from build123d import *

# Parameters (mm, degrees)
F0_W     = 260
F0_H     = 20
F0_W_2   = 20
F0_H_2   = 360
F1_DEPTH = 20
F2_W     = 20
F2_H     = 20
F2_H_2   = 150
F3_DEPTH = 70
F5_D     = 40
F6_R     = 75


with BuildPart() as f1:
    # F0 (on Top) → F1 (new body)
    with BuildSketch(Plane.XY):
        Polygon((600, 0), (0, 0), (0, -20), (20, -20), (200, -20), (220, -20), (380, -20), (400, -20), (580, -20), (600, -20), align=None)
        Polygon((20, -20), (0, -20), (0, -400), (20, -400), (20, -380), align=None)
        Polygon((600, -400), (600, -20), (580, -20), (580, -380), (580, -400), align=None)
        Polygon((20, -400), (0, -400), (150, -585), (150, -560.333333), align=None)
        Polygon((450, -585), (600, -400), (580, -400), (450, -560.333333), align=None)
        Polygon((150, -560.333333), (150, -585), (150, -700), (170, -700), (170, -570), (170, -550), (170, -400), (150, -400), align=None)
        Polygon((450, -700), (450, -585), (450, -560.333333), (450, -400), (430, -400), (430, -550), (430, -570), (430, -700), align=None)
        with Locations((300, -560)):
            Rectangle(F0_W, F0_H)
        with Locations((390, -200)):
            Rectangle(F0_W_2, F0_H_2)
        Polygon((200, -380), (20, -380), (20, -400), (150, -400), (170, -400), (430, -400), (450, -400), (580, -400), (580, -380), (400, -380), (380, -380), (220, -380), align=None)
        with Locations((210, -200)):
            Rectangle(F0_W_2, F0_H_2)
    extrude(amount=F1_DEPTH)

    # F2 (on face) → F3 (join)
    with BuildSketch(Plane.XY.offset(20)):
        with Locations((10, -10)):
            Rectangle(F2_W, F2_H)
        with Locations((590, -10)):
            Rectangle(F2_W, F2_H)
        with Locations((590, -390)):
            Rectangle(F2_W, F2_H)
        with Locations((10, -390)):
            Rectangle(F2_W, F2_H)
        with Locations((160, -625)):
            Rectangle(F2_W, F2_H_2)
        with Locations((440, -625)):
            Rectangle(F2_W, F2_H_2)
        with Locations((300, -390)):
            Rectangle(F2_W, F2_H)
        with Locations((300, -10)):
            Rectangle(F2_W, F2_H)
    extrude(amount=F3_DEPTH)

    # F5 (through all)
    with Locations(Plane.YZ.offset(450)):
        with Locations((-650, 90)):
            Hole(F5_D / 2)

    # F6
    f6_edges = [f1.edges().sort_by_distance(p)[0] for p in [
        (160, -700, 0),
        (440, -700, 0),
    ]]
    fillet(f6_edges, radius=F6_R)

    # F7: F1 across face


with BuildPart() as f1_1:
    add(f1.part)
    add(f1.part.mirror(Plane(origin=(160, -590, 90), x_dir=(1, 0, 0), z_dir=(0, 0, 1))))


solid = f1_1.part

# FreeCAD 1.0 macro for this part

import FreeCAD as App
import Part
import Sketcher
from FreeCAD import Vector
Q = App.Units.Quantity


def edges_at(feature, points):
    """Names of the edges that pass closest to the given points."""
    edges = feature.Shape.Edges
    near = lambda p: min(range(len(edges)), key=lambda i: edges[i].distToShape(Part.Vertex(*p))[0])
    return sorted({f"Edge{near(p) + 1}" for p in points})


def add_polygon(sketch, points):
    """Adds a closed chain of lines whose ends are joined by coincident constraints."""
    first, n = sketch.GeometryCount, len(points)
    for a, b in zip(points, points[1:] + points[:1]):
        sketch.addGeometry(Part.LineSegment(App.Vector(*a, 0), App.Vector(*b, 0)), False)
    for i in range(n):
        sketch.addConstraint(Sketcher.Constraint("Coincident", first + i, 2, first + (i + 1) % n, 1))

doc = App.newDocument("Part")
body = doc.addObject("PartDesign::Body", "Body")

# Sketch on XY plane
sketch1 = body.newObject("Sketcher::SketchObject", "Sketch")
sketch1.AttachmentSupport = (doc.getObject("XY_Plane"), [""])
sketch1.MapMode = "FlatFace"
add_polygon(sketch1, [(600, 0), (0, 0), (0, -400), (150, -585), (150, -700), (170, -700), (170, -570), (430, -570), (430, -700), (450, -700), (450, -585), (600, -400)])  # lines 0-11
add_polygon(sketch1, [(170, -550), (170, -400), (430, -400), (430, -550)])  # lines 12-15
add_polygon(sketch1, [(150, -400), (150, -560.333333), (20, -400)])  # lines 16-18
add_polygon(sketch1, [(20, -380), (20, -20), (200, -20), (200, -380)])  # lines 19-22
add_polygon(sketch1, [(220, -20), (380, -20), (380, -380), (220, -380)])  # lines 23-26
add_polygon(sketch1, [(400, -380), (400, -20), (580, -20), (580, -380)])  # lines 27-30
add_polygon(sketch1, [(580, -400), (450, -560.333333), (450, -400)])  # lines 31-33
sketch1.addConstraint(Sketcher.Constraint("Horizontal", 0))
sketch1.addConstraint(Sketcher.Constraint("Vertical", 1))
sketch1.addConstraint(Sketcher.Constraint("Vertical", 3))
sketch1.addConstraint(Sketcher.Constraint("Horizontal", 4))
sketch1.addConstraint(Sketcher.Constraint("Vertical", 5))
sketch1.addConstraint(Sketcher.Constraint("Horizontal", 6))
sketch1.addConstraint(Sketcher.Constraint("Vertical", 7))
sketch1.addConstraint(Sketcher.Constraint("Horizontal", 8))
sketch1.addConstraint(Sketcher.Constraint("Vertical", 9))
sketch1.addConstraint(Sketcher.Constraint("Vertical", 11))
sketch1.addConstraint(Sketcher.Constraint("Vertical", 12))
sketch1.addConstraint(Sketcher.Constraint("Horizontal", 13))
sketch1.addConstraint(Sketcher.Constraint("Vertical", 14))
sketch1.addConstraint(Sketcher.Constraint("Horizontal", 15))
sketch1.addConstraint(Sketcher.Constraint("Vertical", 16))
sketch1.addConstraint(Sketcher.Constraint("Horizontal", 18))
sketch1.addConstraint(Sketcher.Constraint("Vertical", 19))
sketch1.addConstraint(Sketcher.Constraint("Horizontal", 20))
sketch1.addConstraint(Sketcher.Constraint("Vertical", 21))
sketch1.addConstraint(Sketcher.Constraint("Horizontal", 22))
sketch1.addConstraint(Sketcher.Constraint("Horizontal", 23))
sketch1.addConstraint(Sketcher.Constraint("Vertical", 24))
sketch1.addConstraint(Sketcher.Constraint("Horizontal", 25))
sketch1.addConstraint(Sketcher.Constraint("Vertical", 26))
sketch1.addConstraint(Sketcher.Constraint("Vertical", 27))
sketch1.addConstraint(Sketcher.Constraint("Horizontal", 28))
sketch1.addConstraint(Sketcher.Constraint("Vertical", 29))
sketch1.addConstraint(Sketcher.Constraint("Horizontal", 30))
sketch1.addConstraint(Sketcher.Constraint("Vertical", 32))
sketch1.addConstraint(Sketcher.Constraint("Horizontal", 33))
sketch1.addConstraint(Sketcher.Constraint("Coincident", 0, 2, -1, 1))
sketch1.addConstraint(Sketcher.Constraint("Parallel", 2, 17))
sketch1.addConstraint(Sketcher.Constraint("Parallel", 10, 31))
sketch1.addConstraint(Sketcher.Constraint("Horizontal", 4, 2, 7, 2))
sketch1.addConstraint(Sketcher.Constraint("Horizontal", 2, 2, 9, 2))
sketch1.addConstraint(Sketcher.Constraint("Horizontal", 1, 2, 10, 2))
sketch1.addConstraint(Sketcher.Constraint("Horizontal", 10, 2, 12, 2))
sketch1.addConstraint(Sketcher.Constraint("Horizontal", 13, 2, 17, 2))
sketch1.addConstraint(Sketcher.Constraint("Horizontal", 20, 2, 23, 2))
sketch1.addConstraint(Sketcher.Constraint("Horizontal", 22, 2, 24, 2))
sketch1.addConstraint(Sketcher.Constraint("Horizontal", 26, 2, 27, 2))
sketch1.addConstraint(Sketcher.Constraint("Horizontal", 25, 2, 29, 2))
sketch1.addConstraint(Sketcher.Constraint("Horizontal", 16, 2, 31, 2))
sketch1.addConstraint(Sketcher.Constraint("Horizontal", 18, 2, 32, 2))
sketch1.addConstraint(Sketcher.Constraint("Vertical", 5, 2, 12, 2))
sketch1.addConstraint(Sketcher.Constraint("Vertical", 7, 2, 13, 2))
sketch1.addConstraint(Sketcher.Constraint("Vertical", 3, 2, 16, 2))
sketch1.addConstraint(Sketcher.Constraint("Vertical", 17, 2, 19, 2))
sketch1.addConstraint(Sketcher.Constraint("Vertical", 9, 2, 31, 2))
sketch1.addConstraint(Sketcher.Constraint("Vertical", 29, 2, 33, 2))
sketch1.addConstraint(Sketcher.Constraint("Equal", 4, 8))
sketch1.addConstraint(Sketcher.Constraint("Equal", 22, 28))
sketch1.addConstraint(Sketcher.Constraint("Equal", 18, 33))
sketch1.addConstraint(Sketcher.Constraint("Equal", 33, 5))
sketch1.addConstraint(Sketcher.Constraint("DistanceX", 0, 2, 0, 1, Q("600 mm")))
sketch1.addConstraint(Sketcher.Constraint("DistanceX", 4, 1, 4, 2, Q("20 mm")))
sketch1.addConstraint(Sketcher.Constraint("DistanceX", 6, 1, 6, 2, Q("260 mm")))
sketch1.addConstraint(Sketcher.Constraint("DistanceX", 18, 1, 18, 2, Q("130 mm")))
sketch1.addConstraint(Sketcher.Constraint("DistanceX", 20, 1, 20, 2, Q("180 mm")))
sketch1.addConstraint(Sketcher.Constraint("DistanceX", 23, 1, 23, 2, Q("160 mm")))
sketch1.addConstraint(Sketcher.Constraint("DistanceY", 1, 2, 1, 1, Q("400 mm")))
sketch1.addConstraint(Sketcher.Constraint("DistanceY", 3, 2, 3, 1, Q("115 mm")))
sketch1.addConstraint(Sketcher.Constraint("DistanceY", 12, 1, 12, 2, Q("150 mm")))
sketch1.addConstraint(Sketcher.Constraint("DistanceY", 19, 1, 19, 2, Q("360 mm")))
sketch1.addConstraint(Sketcher.Constraint("DistanceY", 2, 2, -1, 1, Q("585 mm")))
sketch1.addConstraint(Sketcher.Constraint("DistanceY", 19, 2, -1, 1, Q("20 mm")))
sketch1.addConstraint(Sketcher.Constraint("DistanceX", -1, 1, 23, 2, Q("380 mm")))
pad1 = body.newObject("PartDesign::Pad", "Pad")
pad1.Profile = sketch1
pad1.Length = 20

# Sketch on XY plane
sketch2 = body.newObject("Sketcher::SketchObject", "Sketch001")
sketch2.AttachmentSupport = (doc.getObject("XY_Plane"), [""])
sketch2.MapMode = "FlatFace"
sketch2.AttachmentOffset = App.Placement(Vector(0, 0, 20), App.Rotation())
add_polygon(sketch2, [(0, 0), (0, -20), (20, -20), (20, 0)])  # lines 0-3
add_polygon(sketch2, [(580, 0), (580, -20), (600, -20), (600, 0)])  # lines 4-7
add_polygon(sketch2, [(580, -380), (580, -400), (600, -400), (600, -380)])  # lines 8-11
add_polygon(sketch2, [(0, -380), (0, -400), (20, -400), (20, -380)])  # lines 12-15
add_polygon(sketch2, [(150, -550), (150, -700), (170, -700), (170, -550)])  # lines 16-19
add_polygon(sketch2, [(430, -550), (430, -700), (450, -700), (450, -550)])  # lines 20-23
add_polygon(sketch2, [(290, -380), (290, -400), (310, -400), (310, -380)])  # lines 24-27
add_polygon(sketch2, [(290, 0), (290, -20), (310, -20), (310, 0)])  # lines 28-31
sketch2.addConstraint(Sketcher.Constraint("Vertical", 0))
sketch2.addConstraint(Sketcher.Constraint("Horizontal", 1))
sketch2.addConstraint(Sketcher.Constraint("Vertical", 2))
sketch2.addConstraint(Sketcher.Constraint("Horizontal", 3))
sketch2.addConstraint(Sketcher.Constraint("Vertical", 4))
sketch2.addConstraint(Sketcher.Constraint("Horizontal", 5))
sketch2.addConstraint(Sketcher.Constraint("Vertical", 6))
sketch2.addConstraint(Sketcher.Constraint("Horizontal", 7))
sketch2.addConstraint(Sketcher.Constraint("Vertical", 8))
sketch2.addConstraint(Sketcher.Constraint("Horizontal", 9))
sketch2.addConstraint(Sketcher.Constraint("Vertical", 10))
sketch2.addConstraint(Sketcher.Constraint("Horizontal", 11))
sketch2.addConstraint(Sketcher.Constraint("Vertical", 12))
sketch2.addConstraint(Sketcher.Constraint("Horizontal", 13))
sketch2.addConstraint(Sketcher.Constraint("Vertical", 14))
sketch2.addConstraint(Sketcher.Constraint("Horizontal", 15))
sketch2.addConstraint(Sketcher.Constraint("Vertical", 16))
sketch2.addConstraint(Sketcher.Constraint("Horizontal", 17))
sketch2.addConstraint(Sketcher.Constraint("Vertical", 18))
sketch2.addConstraint(Sketcher.Constraint("Horizontal", 19))
sketch2.addConstraint(Sketcher.Constraint("Vertical", 20))
sketch2.addConstraint(Sketcher.Constraint("Horizontal", 21))
sketch2.addConstraint(Sketcher.Constraint("Vertical", 22))
sketch2.addConstraint(Sketcher.Constraint("Horizontal", 23))
sketch2.addConstraint(Sketcher.Constraint("Vertical", 24))
sketch2.addConstraint(Sketcher.Constraint("Horizontal", 25))
sketch2.addConstraint(Sketcher.Constraint("Vertical", 26))
sketch2.addConstraint(Sketcher.Constraint("Horizontal", 27))
sketch2.addConstraint(Sketcher.Constraint("Vertical", 28))
sketch2.addConstraint(Sketcher.Constraint("Horizontal", 29))
sketch2.addConstraint(Sketcher.Constraint("Vertical", 30))
sketch2.addConstraint(Sketcher.Constraint("Horizontal", 31))
sketch2.addConstraint(Sketcher.Constraint("Coincident", 3, 2, -1, 1))
sketch2.addConstraint(Sketcher.Constraint("PointOnObject", 6, 2, -1))
sketch2.addConstraint(Sketcher.Constraint("PointOnObject", 12, 2, -2))
sketch2.addConstraint(Sketcher.Constraint("PointOnObject", 30, 2, -1))
sketch2.addConstraint(Sketcher.Constraint("Horizontal", 1, 2, 4, 2))
sketch2.addConstraint(Sketcher.Constraint("Horizontal", 9, 2, 12, 2))
sketch2.addConstraint(Sketcher.Constraint("Horizontal", 11, 2, 14, 2))
sketch2.addConstraint(Sketcher.Constraint("Horizontal", 17, 2, 20, 2))
sketch2.addConstraint(Sketcher.Constraint("Horizontal", 19, 2, 22, 2))
sketch2.addConstraint(Sketcher.Constraint("Horizontal", 13, 2, 24, 2))
sketch2.addConstraint(Sketcher.Constraint("Horizontal", 15, 2, 26, 2))
sketch2.addConstraint(Sketcher.Constraint("Horizontal", 5, 2, 28, 2))
sketch2.addConstraint(Sketcher.Constraint("Vertical", 7, 2, 8, 2))
sketch2.addConstraint(Sketcher.Constraint("Vertical", 6, 2, 9, 2))
sketch2.addConstraint(Sketcher.Constraint("Vertical", 2, 2, 13, 2))
sketch2.addConstraint(Sketcher.Constraint("Vertical", 27, 2, 28, 2))
sketch2.addConstraint(Sketcher.Constraint("Vertical", 26, 2, 29, 2))
sketch2.addConstraint(Sketcher.Constraint("Equal", 3, 5))
sketch2.addConstraint(Sketcher.Constraint("Equal", 15, 17))
sketch2.addConstraint(Sketcher.Constraint("Equal", 19, 21))
sketch2.addConstraint(Sketcher.Constraint("Equal", 23, 25))
sketch2.addConstraint(Sketcher.Constraint("Equal", 31, 0))
sketch2.addConstraint(Sketcher.Constraint("Equal", 6, 8))
sketch2.addConstraint(Sketcher.Constraint("DistanceX", 1, 1, 1, 2, Q("20 mm")))
sketch2.addConstraint(Sketcher.Constraint("DistanceY", 16, 2, 16, 1, Q("150 mm")))
sketch2.addConstraint(Sketcher.Constraint("DistanceX", -1, 1, 4, 2, Q("580 mm")))
sketch2.addConstraint(Sketcher.Constraint("DistanceY", 8, 2, -1, 1, Q("400 mm")))
sketch2.addConstraint(Sketcher.Constraint("DistanceX", -1, 1, 16, 2, Q("150 mm")))
sketch2.addConstraint(Sketcher.Constraint("DistanceY", 16, 2, -1, 1, Q("700 mm")))
sketch2.addConstraint(Sketcher.Constraint("DistanceX", -1, 1, 20, 2, Q("430 mm")))
sketch2.addConstraint(Sketcher.Constraint("DistanceX", -1, 1, 24, 2, Q("290 mm")))
pad2 = body.newObject("PartDesign::Pad", "Pad001")
pad2.Profile = sketch2
pad2.Length = 70

# Sketch on YZ plane
sketch3 = body.newObject("Sketcher::SketchObject", "Sketch002")
sketch3.AttachmentSupport = (doc.getObject("YZ_Plane"), [""])
sketch3.MapMode = "FlatFace"
sketch3.AttachmentOffset = App.Placement(Vector(0, 0, 450), App.Rotation())
sketch3.addGeometry(Part.Circle(Vector(-650, 90, 0), Vector(0, 0, 1), 20), False)
sketch3.addConstraint(Sketcher.Constraint("Diameter", 0, Q("40 mm")))
sketch3.addConstraint(Sketcher.Constraint("DistanceX", 0, 3, -1, 1, Q("650 mm")))
sketch3.addConstraint(Sketcher.Constraint("DistanceY", -1, 1, 0, 3, Q("90 mm")))
doc.recompute()
hole = body.newObject("PartDesign::Hole", "Hole")
hole.Profile = sketch3
hole.ThreadType = "None"
hole.Diameter = 40
hole.DepthType = "ThroughAll"
doc.recompute()

fillet = body.newObject("PartDesign::Fillet", "Fillet")
fillet.Base = (hole, edges_at(hole, [(160, -700, 0), (440, -700, 0)]))
fillet.Radius = 75
body2 = doc.addObject("PartDesign::Body", "Body001")
doc.recompute()

body2.BaseFeature = body
doc.recompute()

mirroring = doc.addObject("Part::Mirroring", "Mirroring")
mirroring.Source = body
mirroring.Base = Vector(160, -590, 90)
mirroring.Normal = Vector(0, 0, 1)
body3 = doc.addObject("PartDesign::Body", "Body002")
body3.BaseFeature = mirroring
boolean = body2.newObject("PartDesign::Boolean", "Boolean")
boolean.Type = "Fuse"
boolean.addObjects([body3])
doc.recompute()
mirroring.Visibility = False

doc.recompute()
